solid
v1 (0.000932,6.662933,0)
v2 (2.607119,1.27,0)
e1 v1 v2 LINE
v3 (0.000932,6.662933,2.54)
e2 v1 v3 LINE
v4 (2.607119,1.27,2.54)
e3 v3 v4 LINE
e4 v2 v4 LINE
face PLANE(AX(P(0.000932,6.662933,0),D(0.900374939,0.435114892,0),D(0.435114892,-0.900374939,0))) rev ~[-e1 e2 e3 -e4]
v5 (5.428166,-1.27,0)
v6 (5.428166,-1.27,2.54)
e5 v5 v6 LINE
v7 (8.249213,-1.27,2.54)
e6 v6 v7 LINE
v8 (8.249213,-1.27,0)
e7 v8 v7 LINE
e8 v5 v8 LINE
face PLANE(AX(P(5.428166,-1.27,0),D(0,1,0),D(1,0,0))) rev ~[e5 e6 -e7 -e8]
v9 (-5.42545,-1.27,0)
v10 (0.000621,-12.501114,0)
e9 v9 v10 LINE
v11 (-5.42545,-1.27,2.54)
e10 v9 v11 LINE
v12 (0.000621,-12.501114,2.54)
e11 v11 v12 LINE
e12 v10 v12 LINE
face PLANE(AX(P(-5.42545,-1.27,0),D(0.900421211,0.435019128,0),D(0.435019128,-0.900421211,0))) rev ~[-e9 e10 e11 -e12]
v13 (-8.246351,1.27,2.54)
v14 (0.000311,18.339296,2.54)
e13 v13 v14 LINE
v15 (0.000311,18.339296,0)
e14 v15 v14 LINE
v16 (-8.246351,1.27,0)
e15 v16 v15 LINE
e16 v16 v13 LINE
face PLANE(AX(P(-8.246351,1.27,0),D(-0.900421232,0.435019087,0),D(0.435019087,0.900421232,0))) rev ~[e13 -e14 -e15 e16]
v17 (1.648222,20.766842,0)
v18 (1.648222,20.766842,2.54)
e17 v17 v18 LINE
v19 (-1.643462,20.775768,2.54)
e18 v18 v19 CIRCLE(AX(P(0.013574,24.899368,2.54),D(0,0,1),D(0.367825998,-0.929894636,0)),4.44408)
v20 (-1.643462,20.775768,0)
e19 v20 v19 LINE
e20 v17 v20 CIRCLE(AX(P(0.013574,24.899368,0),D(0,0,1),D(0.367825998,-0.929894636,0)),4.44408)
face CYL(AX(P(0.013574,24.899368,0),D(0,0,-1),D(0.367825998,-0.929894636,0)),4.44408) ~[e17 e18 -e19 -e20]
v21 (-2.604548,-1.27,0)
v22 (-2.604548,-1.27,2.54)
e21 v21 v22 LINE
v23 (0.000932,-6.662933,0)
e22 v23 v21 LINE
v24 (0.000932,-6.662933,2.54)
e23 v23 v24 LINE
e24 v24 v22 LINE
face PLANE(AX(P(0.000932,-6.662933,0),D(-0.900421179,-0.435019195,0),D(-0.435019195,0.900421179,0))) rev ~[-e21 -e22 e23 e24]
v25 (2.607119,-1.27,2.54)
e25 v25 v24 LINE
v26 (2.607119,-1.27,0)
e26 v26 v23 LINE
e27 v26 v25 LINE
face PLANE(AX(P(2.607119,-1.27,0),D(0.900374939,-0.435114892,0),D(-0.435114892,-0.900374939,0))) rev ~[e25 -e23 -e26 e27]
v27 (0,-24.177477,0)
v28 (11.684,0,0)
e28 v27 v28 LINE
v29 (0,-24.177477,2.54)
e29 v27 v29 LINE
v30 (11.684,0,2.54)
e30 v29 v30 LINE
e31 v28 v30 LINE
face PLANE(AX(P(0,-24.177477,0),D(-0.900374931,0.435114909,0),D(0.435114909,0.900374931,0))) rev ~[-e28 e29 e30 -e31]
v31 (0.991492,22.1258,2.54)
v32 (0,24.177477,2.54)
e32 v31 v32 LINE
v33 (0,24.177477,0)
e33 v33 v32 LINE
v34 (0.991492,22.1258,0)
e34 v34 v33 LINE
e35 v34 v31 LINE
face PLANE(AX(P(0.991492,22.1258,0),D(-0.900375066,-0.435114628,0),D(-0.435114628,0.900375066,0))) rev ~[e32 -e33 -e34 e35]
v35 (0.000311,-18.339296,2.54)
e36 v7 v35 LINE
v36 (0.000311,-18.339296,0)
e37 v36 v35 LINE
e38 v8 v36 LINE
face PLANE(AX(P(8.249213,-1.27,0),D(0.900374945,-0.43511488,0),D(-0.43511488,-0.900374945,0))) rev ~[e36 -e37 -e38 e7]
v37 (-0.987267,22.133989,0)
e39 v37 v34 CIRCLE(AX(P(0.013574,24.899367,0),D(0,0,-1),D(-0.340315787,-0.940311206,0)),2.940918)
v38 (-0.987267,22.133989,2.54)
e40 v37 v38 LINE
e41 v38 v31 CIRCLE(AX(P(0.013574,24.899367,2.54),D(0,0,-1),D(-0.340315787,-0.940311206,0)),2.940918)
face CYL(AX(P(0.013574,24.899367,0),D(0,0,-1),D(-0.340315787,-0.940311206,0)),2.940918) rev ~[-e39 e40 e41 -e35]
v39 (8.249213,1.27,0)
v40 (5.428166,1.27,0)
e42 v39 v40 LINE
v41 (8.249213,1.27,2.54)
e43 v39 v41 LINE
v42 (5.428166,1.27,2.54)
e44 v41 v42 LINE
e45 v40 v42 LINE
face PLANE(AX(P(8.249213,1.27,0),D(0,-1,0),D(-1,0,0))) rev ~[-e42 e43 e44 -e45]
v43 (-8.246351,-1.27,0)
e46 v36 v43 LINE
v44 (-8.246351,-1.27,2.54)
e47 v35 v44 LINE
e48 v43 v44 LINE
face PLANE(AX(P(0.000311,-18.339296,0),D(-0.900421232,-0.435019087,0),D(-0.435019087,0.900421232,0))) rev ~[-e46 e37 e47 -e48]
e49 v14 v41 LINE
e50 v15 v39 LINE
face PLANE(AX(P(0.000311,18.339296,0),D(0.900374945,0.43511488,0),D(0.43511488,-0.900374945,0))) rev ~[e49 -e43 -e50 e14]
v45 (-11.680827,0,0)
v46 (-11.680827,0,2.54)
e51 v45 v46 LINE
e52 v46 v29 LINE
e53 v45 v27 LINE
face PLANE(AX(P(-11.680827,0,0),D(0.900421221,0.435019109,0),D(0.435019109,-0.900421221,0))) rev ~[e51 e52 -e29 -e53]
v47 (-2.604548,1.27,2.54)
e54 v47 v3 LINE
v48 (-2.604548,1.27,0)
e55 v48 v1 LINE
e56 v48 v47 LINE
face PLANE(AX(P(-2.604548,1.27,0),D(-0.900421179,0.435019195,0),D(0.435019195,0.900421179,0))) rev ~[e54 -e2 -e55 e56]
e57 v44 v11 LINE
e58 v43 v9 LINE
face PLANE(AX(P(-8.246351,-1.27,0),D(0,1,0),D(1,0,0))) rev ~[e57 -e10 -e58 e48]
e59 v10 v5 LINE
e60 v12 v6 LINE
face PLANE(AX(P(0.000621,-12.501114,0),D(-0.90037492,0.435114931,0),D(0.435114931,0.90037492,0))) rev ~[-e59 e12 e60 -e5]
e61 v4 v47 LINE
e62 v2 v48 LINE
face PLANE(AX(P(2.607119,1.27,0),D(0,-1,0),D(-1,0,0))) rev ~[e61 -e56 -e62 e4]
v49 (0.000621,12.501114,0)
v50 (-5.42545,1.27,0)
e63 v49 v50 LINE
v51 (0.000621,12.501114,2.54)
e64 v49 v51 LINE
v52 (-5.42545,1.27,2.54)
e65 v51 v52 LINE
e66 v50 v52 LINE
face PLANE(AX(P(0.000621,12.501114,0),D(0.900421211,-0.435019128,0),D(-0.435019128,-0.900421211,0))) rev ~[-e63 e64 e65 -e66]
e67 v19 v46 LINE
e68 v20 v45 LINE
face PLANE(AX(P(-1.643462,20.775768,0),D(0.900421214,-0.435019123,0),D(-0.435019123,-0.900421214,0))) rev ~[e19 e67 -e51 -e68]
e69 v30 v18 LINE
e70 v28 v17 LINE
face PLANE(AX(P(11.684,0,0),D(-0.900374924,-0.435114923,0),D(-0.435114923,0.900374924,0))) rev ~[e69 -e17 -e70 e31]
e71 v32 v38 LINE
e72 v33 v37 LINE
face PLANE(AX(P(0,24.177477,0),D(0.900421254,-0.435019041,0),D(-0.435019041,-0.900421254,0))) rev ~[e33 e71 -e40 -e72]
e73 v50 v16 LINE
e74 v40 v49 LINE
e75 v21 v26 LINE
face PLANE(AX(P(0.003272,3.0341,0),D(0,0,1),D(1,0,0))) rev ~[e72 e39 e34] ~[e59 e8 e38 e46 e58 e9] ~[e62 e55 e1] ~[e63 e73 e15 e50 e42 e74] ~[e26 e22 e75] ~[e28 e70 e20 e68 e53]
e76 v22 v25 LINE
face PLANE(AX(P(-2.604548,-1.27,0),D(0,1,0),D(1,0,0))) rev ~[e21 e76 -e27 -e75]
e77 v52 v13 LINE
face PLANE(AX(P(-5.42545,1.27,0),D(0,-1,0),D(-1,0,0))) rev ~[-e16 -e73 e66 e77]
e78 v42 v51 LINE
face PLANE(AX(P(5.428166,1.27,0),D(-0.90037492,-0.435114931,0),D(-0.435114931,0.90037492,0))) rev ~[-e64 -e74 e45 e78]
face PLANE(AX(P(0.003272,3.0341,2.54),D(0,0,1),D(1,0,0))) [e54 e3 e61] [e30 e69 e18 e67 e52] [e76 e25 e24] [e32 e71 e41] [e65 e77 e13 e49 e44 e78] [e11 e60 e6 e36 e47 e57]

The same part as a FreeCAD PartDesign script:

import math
import FreeCAD as App
import Part
import Sketcher
from FreeCAD import Vector
Q = App.Units.Quantity


def add_polygon(sketch, points):
    """Adds a closed chain of lines whose ends are joined by coincident constraints."""
    first, n = sketch.GeometryCount, len(points)
    for a, b in zip(points, points[1:] + points[:1]):
        sketch.addGeometry(Part.LineSegment(App.Vector(*a, 0), App.Vector(*b, 0)), False)
    for i in range(n):
        sketch.addConstraint(Sketcher.Constraint("Coincident", first + i, 2, first + (i + 1) % n, 1))

doc = App.newDocument("Part")
body = doc.addObject("PartDesign::Body", "Body")

# Sketch on XY plane
sketch1 = body.newObject("Sketcher::SketchObject", "Sketch")
sketch1.AttachmentSupport = (doc.getObject("XY_Plane"), [""])
sketch1.MapMode = "FlatFace"
sketch1.addGeometry(Part.LineSegment(Vector(-1.6, 20.8, 0), Vector(-11.7, 0, 0)), False)  # 0
sketch1.addGeometry(Part.LineSegment(Vector(-11.7, 0, 0), Vector(0, -24.2, 0)), False)  # 1
sketch1.addGeometry(Part.LineSegment(Vector(0, -24.2, 0), Vector(11.7, 0, 0)), False)  # 2
sketch1.addGeometry(Part.LineSegment(Vector(11.7, 0, 0), Vector(1.6, 20.8, 0)), False)  # 3
sketch1.addGeometry(Part.ArcOfCircle(Part.Circle(Vector(0, 24.9, 0), Vector(0, 0, 1), 4.4), math.radians(-68), math.radians(248)), False)  # 4
add_polygon(sketch1, [(2.6, -1.3), (0, -6.7), (-2.6, -1.3)])  # lines 5-7
add_polygon(sketch1, [(2.6, 1.3), (-2.6, 1.3), (0, 6.7)])  # lines 8-10
add_polygon(sketch1, [(8.2, -1.3), (0, -18.3), (-8.2, -1.3), (-5.4, -1.3), (0, -12.5), (5.4, -1.3)])  # lines 11-16
add_polygon(sketch1, [(-5.4, 1.3), (-8.2, 1.3), (0, 18.3), (8.2, 1.3), (5.4, 1.3), (0, 12.5)])  # lines 17-22
sketch1.addGeometry(Part.ArcOfCircle(Part.Circle(Vector(0, 24.9, 0), Vector(0, 0, 1), 2.9), math.radians(-71), math.radians(250)), False)  # 23
sketch1.addGeometry(Part.LineSegment(Vector(1, 22.1, 0), Vector(0, 24.2, 0)), False)  # 24
sketch1.addGeometry(Part.LineSegment(Vector(0, 24.2, 0), Vector(-1, 22.1, 0)), False)  # 25
sketch1.addConstraint([
    Sketcher.Constraint("Coincident", 0, 2, 1, 1),
    Sketcher.Constraint("Coincident", 1, 2, 2, 1),
    Sketcher.Constraint("Coincident", 2, 2, 3, 1),
    Sketcher.Constraint("Coincident", 3, 2, 4, 1),
    Sketcher.Constraint("Coincident", 4, 2, 0, 1),
    Sketcher.Constraint("Coincident", 23, 1, 24, 1),
    Sketcher.Constraint("Coincident", 24, 2, 25, 1),
    Sketcher.Constraint("Coincident", 25, 2, 23, 2),
    Sketcher.Constraint("Horizontal", 7),
    Sketcher.Constraint("Horizontal", 8),
    Sketcher.Constraint("Horizontal", 13),
    Sketcher.Constraint("Horizontal", 16),
    Sketcher.Constraint("Horizontal", 17),
    Sketcher.Constraint("Horizontal", 20),
    Sketcher.Constraint("Coincident", 23, 3, 4, 3),
    Sketcher.Constraint("Symmetric", 1, 2, 24, 2, -1, 1),
    Sketcher.Constraint("Symmetric", 6, 2, 8, 2, -1),
    Sketcher.Constraint("Symmetric", 5, 2, 9, 2, -1),
    Sketcher.Constraint("Symmetric", 12, 2, 17, 2, -1),
    Sketcher.Constraint("Symmetric", 11, 2, 18, 2, -1),
    Sketcher.Constraint("Symmetric", 16, 2, 19, 2, -1),
    Sketcher.Constraint("Symmetric", 14, 2, 21, 2, -1),
    Sketcher.Constraint("PointOnObject", 0, 2, -1),
    Sketcher.Constraint("PointOnObject", 1, 2, -2),
    Sketcher.Constraint("PointOnObject", 2, 2, -1),
    Sketcher.Constraint("Parallel", 2, 5),
    Sketcher.Constraint("Parallel", 1, 6),
    Sketcher.Constraint("Parallel", 0, 9),
    Sketcher.Constraint("Parallel", 3, 10),
    Sketcher.Constraint("Parallel", 5, 11),
    Sketcher.Constraint("Parallel", 6, 12),
    Sketcher.Constraint("Parallel", 12, 14),
    Sketcher.Constraint("Parallel", 11, 15),
    Sketcher.Constraint("Parallel", 10, 19),
    Sketcher.Constraint("Parallel", 19, 21),
    Sketcher.Constraint("Parallel", 18, 22),
    Sketcher.Constraint("Parallel", 21, 24),
    Sketcher.Constraint("Parallel", 22, 25),
    Sketcher.Constraint("Horizontal", 7, 2, 12, 2),
    Sketcher.Constraint("Horizontal", 13, 2, 15, 2),
    Sketcher.Constraint("DistanceY", 6, 2, 8, 2, Q("0.1 in")),
    Sketcher.Constraint("DistanceX", -1, 1, 2, 2, Q("0.46 in")),
    Sketcher.Constraint("Radius", 4, 4.44408),
    Sketcher.Constraint("Radius", 23, 2.940918),
    Sketcher.Constraint("DistanceX", 13, 1, 13, 2, 2.820901),
    Sketcher.Constraint("DistanceY", -1, 1, 23, 1, 22.1258),
    Sketcher.Constraint("DistanceX", 0, 2, 23, 3, 11.694401),
    Sketcher.Constraint("DistanceY", 4, 2, 23, 3, 4.123599),
    Sketcher.Constraint("DistanceY", 5, 2, 4, 2, 27.438701),
    Sketcher.Constraint("DistanceX", 13, 2, 6, 2, 2.820902),
    Sketcher.Constraint("DistanceX", 21, 2, 3, 2, 1.647601),
    Sketcher.Constraint("Distance", 3, 23.064661),
    Sketcher.Constraint("Distance", 12, 18.957012),
    Sketcher.Constraint("Distance", 15, 12.473819),
])
pad1 = body.newObject("PartDesign::Pad", "Pad")
pad1.Profile = sketch1
pad1.Length = Q("0.1 in")

doc.recompute()
